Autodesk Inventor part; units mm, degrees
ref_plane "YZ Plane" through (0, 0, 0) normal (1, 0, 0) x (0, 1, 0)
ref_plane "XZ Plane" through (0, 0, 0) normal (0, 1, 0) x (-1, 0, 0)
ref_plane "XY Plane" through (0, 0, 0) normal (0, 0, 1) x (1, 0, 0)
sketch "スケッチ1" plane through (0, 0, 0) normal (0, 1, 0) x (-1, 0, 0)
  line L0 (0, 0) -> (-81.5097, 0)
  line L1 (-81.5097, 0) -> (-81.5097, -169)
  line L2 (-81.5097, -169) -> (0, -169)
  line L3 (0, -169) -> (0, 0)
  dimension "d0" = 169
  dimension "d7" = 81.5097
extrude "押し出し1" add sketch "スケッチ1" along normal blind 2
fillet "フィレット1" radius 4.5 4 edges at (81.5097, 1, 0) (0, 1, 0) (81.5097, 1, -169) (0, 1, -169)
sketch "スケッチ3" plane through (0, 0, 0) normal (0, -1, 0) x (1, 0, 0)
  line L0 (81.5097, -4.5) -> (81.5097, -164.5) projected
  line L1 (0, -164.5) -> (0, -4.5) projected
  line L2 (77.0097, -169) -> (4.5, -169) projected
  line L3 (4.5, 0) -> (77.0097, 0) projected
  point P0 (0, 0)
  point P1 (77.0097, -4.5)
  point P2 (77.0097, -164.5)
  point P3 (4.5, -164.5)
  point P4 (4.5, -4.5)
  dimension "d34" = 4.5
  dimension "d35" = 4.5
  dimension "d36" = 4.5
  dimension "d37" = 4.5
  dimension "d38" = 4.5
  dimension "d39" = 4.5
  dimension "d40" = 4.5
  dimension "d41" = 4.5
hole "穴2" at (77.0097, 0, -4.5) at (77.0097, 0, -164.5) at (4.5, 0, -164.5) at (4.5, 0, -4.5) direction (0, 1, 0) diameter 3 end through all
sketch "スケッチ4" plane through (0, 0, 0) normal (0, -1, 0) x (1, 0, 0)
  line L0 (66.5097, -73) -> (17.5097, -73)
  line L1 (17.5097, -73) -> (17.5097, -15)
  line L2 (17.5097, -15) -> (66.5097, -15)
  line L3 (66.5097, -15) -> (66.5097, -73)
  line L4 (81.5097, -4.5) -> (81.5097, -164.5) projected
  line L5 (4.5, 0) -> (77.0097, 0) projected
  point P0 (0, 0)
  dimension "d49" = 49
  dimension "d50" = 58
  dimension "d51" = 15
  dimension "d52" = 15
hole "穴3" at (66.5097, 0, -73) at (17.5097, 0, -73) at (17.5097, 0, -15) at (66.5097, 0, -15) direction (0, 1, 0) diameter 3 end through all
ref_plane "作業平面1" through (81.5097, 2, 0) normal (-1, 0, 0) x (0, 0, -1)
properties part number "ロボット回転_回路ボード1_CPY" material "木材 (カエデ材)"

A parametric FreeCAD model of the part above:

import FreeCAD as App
import Part
import Sketcher

V = App.Vector
Q = App.Units.Quantity


def edges_at(feature, points):
    """Names of the edges that pass closest to the given points."""
    edges = feature.Shape.Edges
    near = lambda p: min(range(len(edges)), key=lambda i: edges[i].distToShape(Part.Vertex(*p))[0])
    return sorted({f"Edge{near(p) + 1}" for p in points})


def add_polygon(sketch, points):
    """Adds a closed chain of lines whose ends are joined by coincident constraints."""
    first, n = sketch.GeometryCount, len(points)
    for a, b in zip(points, points[1:] + points[:1]):
        sketch.addGeometry(Part.LineSegment(App.Vector(*a, 0), App.Vector(*b, 0)), False)
    for i in range(n):
        sketch.addConstraint(Sketcher.Constraint("Coincident", first + i, 2, first + (i + 1) % n, 1))

doc = App.newDocument("Part")
body = doc.addObject("PartDesign::Body", "Body")

# Sketch on XZ plane
sketch1 = body.newObject("Sketcher::SketchObject", "Sketch")
sketch1.AttachmentSupport = (doc.getObject("XZ_Plane"), [""])
sketch1.MapMode = "FlatFace"
add_polygon(sketch1, [(0, -169), (0, 0), (82, 0), (82, -169)])  # lines 0-3
sketch1.addConstraint(Sketcher.Constraint("Vertical", 0))
sketch1.addConstraint(Sketcher.Constraint("Horizontal", 1))
sketch1.addConstraint(Sketcher.Constraint("Vertical", 2))
sketch1.addConstraint(Sketcher.Constraint("Horizontal", 3))
sketch1.addConstraint(Sketcher.Constraint("Coincident", 0, 2, -1, 1))
sketch1.addConstraint(Sketcher.Constraint("DistanceY", 0, 1, 0, 2, Q("169 mm")))
sketch1.addConstraint(Sketcher.Constraint("DistanceX", 1, 1, 1, 2, Q("81.5097 mm")))
pad1 = body.newObject("PartDesign::Pad", "Pad")
pad1.Profile = sketch1
pad1.Length = 2
pad1.Reversed = True
doc.recompute()

fillet = body.newObject("PartDesign::Fillet", "Fillet")
fillet.Base = (pad1, edges_at(pad1, [
    (81.51, 1, 0),
    (0, 1, 0),
    (81.51, 1, -169),
    (0, 1, -169),
]))
fillet.Radius = 4.5

# Sketch on XZ plane
sketch2 = body.newObject("Sketcher::SketchObject", "Sketch001")
sketch2.AttachmentSupport = (doc.getObject("XZ_Plane"), [""])
sketch2.MapMode = "FlatFace"
sketch2.addGeometry(Part.Circle(V(77, -4.5, 0), V(0, 0, 1), 1.5), False)
sketch2.addGeometry(Part.Circle(V(77, -164.5, 0), V(0, 0, 1), 1.5), False)
sketch2.addGeometry(Part.Circle(V(4.5, -164.5, 0), V(0, 0, 1), 1.5), False)
sketch2.addGeometry(Part.Circle(V(4.5, -4.5, 0), V(0, 0, 1), 1.5), False)
sketch2.addConstraint(Sketcher.Constraint("Equal", 0, 1))
sketch2.addConstraint(Sketcher.Constraint("Equal", 1, 2))
sketch2.addConstraint(Sketcher.Constraint("Equal", 2, 3))
sketch2.addConstraint(Sketcher.Constraint("Horizontal", 1, 3, 2, 3))
sketch2.addConstraint(Sketcher.Constraint("Horizontal", 0, 3, 3, 3))
sketch2.addConstraint(Sketcher.Constraint("Vertical", 0, 3, 1, 3))
sketch2.addConstraint(Sketcher.Constraint("Vertical", 2, 3, 3, 3))
sketch2.addConstraint(Sketcher.Constraint("Diameter", 0, Q("3 mm")))
sketch2.addConstraint(Sketcher.Constraint("DistanceY", 1, 3, 0, 3, Q("160 mm")))
sketch2.addConstraint(Sketcher.Constraint("DistanceY", 0, 3, -1, 1, Q("4.5 mm")))
sketch2.addConstraint(Sketcher.Constraint("DistanceX", -1, 1, 2, 3, Q("4.5 mm")))
sketch2.addConstraint(Sketcher.Constraint("DistanceX", -1, 1, 0, 3, Q("77.0097 mm")))
doc.recompute()
hole = body.newObject("PartDesign::Hole", "Hole")
hole.Profile = sketch2
hole.ThreadType = "None"
hole.Diameter = 3
hole.DepthType = "ThroughAll"

# Sketch on XZ plane
sketch3 = body.newObject("Sketcher::SketchObject", "Sketch002")
sketch3.AttachmentSupport = (doc.getObject("XZ_Plane"), [""])
sketch3.MapMode = "FlatFace"
sketch3.addGeometry(Part.Circle(V(66.5, -73, 0), V(0, 0, 1), 1.5), False)
sketch3.addGeometry(Part.Circle(V(17.5, -73, 0), V(0, 0, 1), 1.5), False)
sketch3.addGeometry(Part.Circle(V(17.5, -15, 0), V(0, 0, 1), 1.5), False)
sketch3.addGeometry(Part.Circle(V(66.5, -15, 0), V(0, 0, 1), 1.5), False)
sketch3.addConstraint(Sketcher.Constraint("Equal", 0, 1))
sketch3.addConstraint(Sketcher.Constraint("Equal", 1, 2))
sketch3.addConstraint(Sketcher.Constraint("Equal", 2, 3))
sketch3.addConstraint(Sketcher.Constraint("Horizontal", 0, 3, 1, 3))
sketch3.addConstraint(Sketcher.Constraint("Horizontal", 2, 3, 3, 3))
sketch3.addConstraint(Sketcher.Constraint("Vertical", 1, 3, 2, 3))
sketch3.addConstraint(Sketcher.Constraint("Vertical", 0, 3, 3, 3))
sketch3.addConstraint(Sketcher.Constraint("Diameter", 0, Q("3 mm")))
sketch3.addConstraint(Sketcher.Constraint("DistanceY", 0, 3, -1, 1, Q("73 mm")))
sketch3.addConstraint(Sketcher.Constraint("DistanceY", 2, 3, -1, 1, Q("15 mm")))
sketch3.addConstraint(Sketcher.Constraint("DistanceX", 1, 3, 0, 3, Q("49 mm")))
sketch3.addConstraint(Sketcher.Constraint("DistanceX", -1, 1, 0, 3, Q("66.5097 mm")))
doc.recompute()
hole2 = body.newObject("PartDesign::Hole", "Hole001")
hole2.Profile = sketch3
hole2.ThreadType = "None"
hole2.Diameter = 3
hole2.DepthType = "ThroughAll"

doc.recompute()
